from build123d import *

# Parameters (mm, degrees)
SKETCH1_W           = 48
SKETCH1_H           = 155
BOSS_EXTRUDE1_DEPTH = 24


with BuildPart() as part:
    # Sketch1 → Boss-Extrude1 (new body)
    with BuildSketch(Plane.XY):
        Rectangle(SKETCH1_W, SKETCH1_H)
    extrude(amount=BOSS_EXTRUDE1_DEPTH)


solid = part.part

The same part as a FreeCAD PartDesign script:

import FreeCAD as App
import Part
import Sketcher

V = App.Vector
Q = App.Units.Quantity

doc = App.newDocument("Part")
body = doc.addObject("PartDesign::Body", "Body")

# Sketch on XY plane
sketch1 = doc.addObject("Sketcher::SketchObject", "Sketch")
body.addObject(sketch1)
sketch1.AttachmentSupport = (doc.XY_Plane, [""])
sketch1.MapMode = "FlatFace"
sketch1.addGeometry([
    Part.LineSegment(V(-24, 78, 0), V(-24, -78, 0)),
    Part.LineSegment(V(-24, -78, 0), V(24, -78, 0)),
    Part.LineSegment(V(24, -78, 0), V(24, 78, 0)),
    Part.LineSegment(V(24, 78, 0), V(-24, 78, 0)),
], False)
sketch1.addConstraint([
    Sketcher.Constraint("Coincident", 0, 2, 1, 1),
    Sketcher.Constraint("Coincident", 1, 2, 2, 1),
    Sketcher.Constraint("Coincident", 2, 2, 3, 1),
    Sketcher.Constraint("Coincident", 3, 2, 0, 1),
    Sketcher.Constraint("Vertical", 0),
    Sketcher.Constraint("Horizontal", 1),
    Sketcher.Constraint("Vertical", 2),
    Sketcher.Constraint("Horizontal", 3),
    Sketcher.Constraint("Symmetric", 0, 2, 2, 2, -1, 1),
    Sketcher.Constraint("DistanceX", 1, 1, 1, 2, Q("48 mm")),
    Sketcher.Constraint("DistanceY", 0, 2, 0, 1, Q("155 mm")),
])
pad1 = doc.addObject("PartDesign::Pad", "Pad")
body.addObject(pad1)
pad1.Profile = sketch1
pad1.Length = 24

doc.recompute()
